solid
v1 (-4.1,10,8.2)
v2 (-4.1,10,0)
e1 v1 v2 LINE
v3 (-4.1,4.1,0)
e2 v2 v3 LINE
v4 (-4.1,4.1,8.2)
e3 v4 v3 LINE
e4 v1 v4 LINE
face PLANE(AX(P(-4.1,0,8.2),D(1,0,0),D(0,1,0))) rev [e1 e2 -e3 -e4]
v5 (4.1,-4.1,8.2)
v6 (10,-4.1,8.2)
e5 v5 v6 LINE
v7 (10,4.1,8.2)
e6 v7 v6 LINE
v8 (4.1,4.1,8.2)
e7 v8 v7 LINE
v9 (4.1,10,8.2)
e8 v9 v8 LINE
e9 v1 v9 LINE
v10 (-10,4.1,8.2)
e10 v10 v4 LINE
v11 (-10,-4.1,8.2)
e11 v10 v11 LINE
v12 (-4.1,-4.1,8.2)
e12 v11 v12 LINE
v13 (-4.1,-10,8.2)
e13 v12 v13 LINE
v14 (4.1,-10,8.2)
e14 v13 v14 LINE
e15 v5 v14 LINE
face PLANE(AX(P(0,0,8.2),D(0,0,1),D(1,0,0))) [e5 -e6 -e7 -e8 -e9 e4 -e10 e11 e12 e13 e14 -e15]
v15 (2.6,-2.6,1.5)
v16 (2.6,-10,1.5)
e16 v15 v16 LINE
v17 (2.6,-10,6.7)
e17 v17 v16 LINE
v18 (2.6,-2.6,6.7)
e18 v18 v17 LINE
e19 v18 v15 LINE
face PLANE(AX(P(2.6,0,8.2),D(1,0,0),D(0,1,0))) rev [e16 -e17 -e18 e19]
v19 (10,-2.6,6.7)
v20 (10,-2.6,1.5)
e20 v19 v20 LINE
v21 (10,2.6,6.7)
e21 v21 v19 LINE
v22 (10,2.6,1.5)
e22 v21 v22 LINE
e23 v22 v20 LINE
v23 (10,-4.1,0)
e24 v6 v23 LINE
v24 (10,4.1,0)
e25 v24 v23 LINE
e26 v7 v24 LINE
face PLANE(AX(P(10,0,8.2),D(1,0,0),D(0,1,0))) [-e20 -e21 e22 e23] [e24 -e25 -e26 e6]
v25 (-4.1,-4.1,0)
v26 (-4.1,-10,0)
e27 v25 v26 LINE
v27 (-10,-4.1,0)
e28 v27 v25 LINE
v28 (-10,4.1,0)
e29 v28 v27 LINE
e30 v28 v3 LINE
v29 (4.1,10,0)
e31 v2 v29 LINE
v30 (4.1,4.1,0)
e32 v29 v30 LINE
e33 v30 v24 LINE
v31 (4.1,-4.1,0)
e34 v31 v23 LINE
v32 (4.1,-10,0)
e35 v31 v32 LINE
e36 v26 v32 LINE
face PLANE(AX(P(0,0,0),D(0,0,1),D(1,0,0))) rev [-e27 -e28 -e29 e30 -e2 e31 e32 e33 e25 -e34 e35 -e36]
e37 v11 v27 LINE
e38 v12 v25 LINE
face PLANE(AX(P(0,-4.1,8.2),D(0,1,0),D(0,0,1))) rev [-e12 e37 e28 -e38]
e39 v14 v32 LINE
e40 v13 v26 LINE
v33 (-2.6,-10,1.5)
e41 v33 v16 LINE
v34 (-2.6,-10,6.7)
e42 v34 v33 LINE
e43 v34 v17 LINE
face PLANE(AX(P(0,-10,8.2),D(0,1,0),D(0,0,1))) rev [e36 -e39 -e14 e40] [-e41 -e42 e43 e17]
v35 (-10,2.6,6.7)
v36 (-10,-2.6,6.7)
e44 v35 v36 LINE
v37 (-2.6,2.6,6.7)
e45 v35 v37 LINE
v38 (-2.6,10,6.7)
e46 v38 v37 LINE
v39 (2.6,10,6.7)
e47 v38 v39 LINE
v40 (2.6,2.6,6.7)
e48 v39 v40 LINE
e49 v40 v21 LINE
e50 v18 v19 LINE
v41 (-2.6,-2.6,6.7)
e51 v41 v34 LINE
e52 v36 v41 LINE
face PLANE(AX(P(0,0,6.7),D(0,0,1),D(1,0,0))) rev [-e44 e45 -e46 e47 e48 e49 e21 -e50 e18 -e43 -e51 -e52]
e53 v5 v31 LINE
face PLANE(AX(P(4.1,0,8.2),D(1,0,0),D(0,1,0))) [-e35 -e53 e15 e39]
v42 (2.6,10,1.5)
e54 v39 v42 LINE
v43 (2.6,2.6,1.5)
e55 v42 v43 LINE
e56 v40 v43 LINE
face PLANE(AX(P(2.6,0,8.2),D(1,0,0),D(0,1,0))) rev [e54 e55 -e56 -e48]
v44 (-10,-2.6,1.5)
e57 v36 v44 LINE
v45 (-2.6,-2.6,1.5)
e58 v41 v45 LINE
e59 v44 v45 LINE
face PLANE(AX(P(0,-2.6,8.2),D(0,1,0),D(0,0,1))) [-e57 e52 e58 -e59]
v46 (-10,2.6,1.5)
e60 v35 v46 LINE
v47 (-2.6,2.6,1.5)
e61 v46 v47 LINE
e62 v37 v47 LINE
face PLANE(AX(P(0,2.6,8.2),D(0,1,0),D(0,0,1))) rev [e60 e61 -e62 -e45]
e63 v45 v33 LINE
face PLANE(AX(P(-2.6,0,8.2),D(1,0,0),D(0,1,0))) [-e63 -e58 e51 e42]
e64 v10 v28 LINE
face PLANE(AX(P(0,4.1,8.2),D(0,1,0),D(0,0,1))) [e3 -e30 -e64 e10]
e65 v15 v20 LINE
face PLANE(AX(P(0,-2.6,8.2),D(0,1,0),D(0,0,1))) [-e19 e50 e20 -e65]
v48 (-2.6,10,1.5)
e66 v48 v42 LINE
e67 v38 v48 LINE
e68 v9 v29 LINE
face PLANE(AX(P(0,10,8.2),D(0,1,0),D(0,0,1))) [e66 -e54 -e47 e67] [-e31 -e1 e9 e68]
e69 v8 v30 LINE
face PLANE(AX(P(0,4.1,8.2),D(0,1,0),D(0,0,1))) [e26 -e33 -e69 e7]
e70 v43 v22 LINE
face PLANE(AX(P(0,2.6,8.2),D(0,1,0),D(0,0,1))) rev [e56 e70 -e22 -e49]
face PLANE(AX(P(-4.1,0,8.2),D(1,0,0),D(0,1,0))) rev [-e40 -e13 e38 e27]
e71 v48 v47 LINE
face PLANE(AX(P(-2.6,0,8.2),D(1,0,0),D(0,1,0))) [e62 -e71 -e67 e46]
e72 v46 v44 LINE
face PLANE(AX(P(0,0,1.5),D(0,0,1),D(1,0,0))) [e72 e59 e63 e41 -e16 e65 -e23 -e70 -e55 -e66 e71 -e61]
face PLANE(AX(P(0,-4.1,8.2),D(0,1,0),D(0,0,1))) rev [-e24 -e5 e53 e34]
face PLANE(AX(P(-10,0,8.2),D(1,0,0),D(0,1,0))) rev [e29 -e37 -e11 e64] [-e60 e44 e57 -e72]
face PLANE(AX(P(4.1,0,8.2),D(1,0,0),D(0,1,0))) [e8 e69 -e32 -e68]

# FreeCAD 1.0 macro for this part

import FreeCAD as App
import Part
import Sketcher


def faces_at(feature, points):
    """Names of the faces that lie closest to the given points."""
    faces = feature.Shape.Faces
    near = lambda p: min(range(len(faces)), key=lambda i: faces[i].distToShape(Part.Vertex(*p))[0])
    return sorted({f"Face{near(p) + 1}" for p in points})

doc = App.newDocument("Part")
params = doc.addObject("Spreadsheet::Sheet", "Params")
for row, (alias, value) in enumerate([
    ("sketch1_width", "5.9 mm"),
    ("sketch1_width2", "8.2 mm"),
    ("pad1_length", "8.2 mm"),
    ("thickness_wall", "1.5 mm"),
], start=1):
    params.set(f"A{row}", alias)
    params.set(f"B{row}", "=" + value)
    params.setAlias(f"B{row}", alias)

body = doc.addObject("PartDesign::Body", "Body")

# Sketch on XY plane
sketch1 = body.newObject("Sketcher::SketchObject", "Sketch")
sketch1.AttachmentSupport = (doc.getObject("XY_Plane"), [""])
sketch1.MapMode = "FlatFace"
sketch1.addGeometry([
    Part.LineSegment(App.Vector(-10, 4, 0), App.Vector(-10, -4, 0)),  # 0
    Part.LineSegment(App.Vector(-10, -4, 0), App.Vector(-4, -4, 0)),  # 1
    Part.LineSegment(App.Vector(-4, -4, 0), App.Vector(-4, -10, 0)),  # 2
    Part.LineSegment(App.Vector(-4, -10, 0), App.Vector(4, -10, 0)),  # 3
    Part.LineSegment(App.Vector(4, -10, 0), App.Vector(4, -4, 0)),  # 4
    Part.LineSegment(App.Vector(4, -4, 0), App.Vector(10, -4, 0)),  # 5
    Part.LineSegment(App.Vector(10, -4, 0), App.Vector(10, 4, 0)),  # 6
    Part.LineSegment(App.Vector(10, 4, 0), App.Vector(4, 4, 0)),  # 7
    Part.LineSegment(App.Vector(4, 4, 0), App.Vector(4, 10, 0)),  # 8
    Part.LineSegment(App.Vector(4, 10, 0), App.Vector(-4, 10, 0)),  # 9
    Part.LineSegment(App.Vector(-4, 10, 0), App.Vector(-4, 4, 0)),  # 10
    Part.LineSegment(App.Vector(-4, 4, 0), App.Vector(-10, 4, 0)),  # 11
], False)
sketch1.addConstraint([
    Sketcher.Constraint("Coincident", 0, 2, 1, 1),
    Sketcher.Constraint("Coincident", 1, 2, 2, 1),
    Sketcher.Constraint("Coincident", 2, 2, 3, 1),
    Sketcher.Constraint("Coincident", 3, 2, 4, 1),
    Sketcher.Constraint("Coincident", 4, 2, 5, 1),
    Sketcher.Constraint("Coincident", 5, 2, 6, 1),
    Sketcher.Constraint("Coincident", 6, 2, 7, 1),
    Sketcher.Constraint("Coincident", 7, 2, 8, 1),
    Sketcher.Constraint("Coincident", 8, 2, 9, 1),
    Sketcher.Constraint("Coincident", 9, 2, 10, 1),
    Sketcher.Constraint("Coincident", 10, 2, 11, 1),
    Sketcher.Constraint("Coincident", 11, 2, 0, 1),
    Sketcher.Constraint("Vertical", 0),
    Sketcher.Constraint("Horizontal", 1),
    Sketcher.Constraint("Vertical", 2),
    Sketcher.Constraint("Horizontal", 3),
    Sketcher.Constraint("Vertical", 4),
    Sketcher.Constraint("Horizontal", 5),
    Sketcher.Constraint("Vertical", 6),
    Sketcher.Constraint("Horizontal", 7),
    Sketcher.Constraint("Vertical", 8),
    Sketcher.Constraint("Horizontal", 9),
    Sketcher.Constraint("Vertical", 10),
    Sketcher.Constraint("Horizontal", 11),
    Sketcher.Constraint("Symmetric", 0, 2, 6, 2, -1, 1),
    Sketcher.Constraint("Symmetric", 2, 2, 8, 2, -1, 1),
    Sketcher.Constraint("Symmetric", 4, 2, 10, 2, -1, 1),
    Sketcher.Constraint("Symmetric", 1, 2, 4, 2, -2),
    Sketcher.Constraint("Equal", 9, 0),
    Sketcher.Constraint("Equal", 11, 2),
    Sketcher.Constraint("DistanceX", 1, 1, 1, 2, 5.9),
    Sketcher.Constraint("DistanceX", 3, 1, 3, 2, 8.2),
])
sketch1.setExpression("Constraints[30]", "Params.sketch1_width")
sketch1.setExpression("Constraints[31]", "Params.sketch1_width2")
pad1 = body.newObject("PartDesign::Pad", "Pad")
pad1.Profile = sketch1
pad1.setExpression("Length", "Params.pad1_length")
doc.recompute()

thickness = body.newObject("PartDesign::Thickness", "Thickness")
thickness.Base = (pad1, faces_at(pad1, [
    (0, 10, 4.1),
    (10, 0, 4.1),
    (0, -10, 4.1),
    (-10, 0, 4.1),
]))
thickness.setExpression("Value", "Params.thickness_wall")
thickness.Reversed = True
thickness.Join = "Intersection"

doc.recompute()
